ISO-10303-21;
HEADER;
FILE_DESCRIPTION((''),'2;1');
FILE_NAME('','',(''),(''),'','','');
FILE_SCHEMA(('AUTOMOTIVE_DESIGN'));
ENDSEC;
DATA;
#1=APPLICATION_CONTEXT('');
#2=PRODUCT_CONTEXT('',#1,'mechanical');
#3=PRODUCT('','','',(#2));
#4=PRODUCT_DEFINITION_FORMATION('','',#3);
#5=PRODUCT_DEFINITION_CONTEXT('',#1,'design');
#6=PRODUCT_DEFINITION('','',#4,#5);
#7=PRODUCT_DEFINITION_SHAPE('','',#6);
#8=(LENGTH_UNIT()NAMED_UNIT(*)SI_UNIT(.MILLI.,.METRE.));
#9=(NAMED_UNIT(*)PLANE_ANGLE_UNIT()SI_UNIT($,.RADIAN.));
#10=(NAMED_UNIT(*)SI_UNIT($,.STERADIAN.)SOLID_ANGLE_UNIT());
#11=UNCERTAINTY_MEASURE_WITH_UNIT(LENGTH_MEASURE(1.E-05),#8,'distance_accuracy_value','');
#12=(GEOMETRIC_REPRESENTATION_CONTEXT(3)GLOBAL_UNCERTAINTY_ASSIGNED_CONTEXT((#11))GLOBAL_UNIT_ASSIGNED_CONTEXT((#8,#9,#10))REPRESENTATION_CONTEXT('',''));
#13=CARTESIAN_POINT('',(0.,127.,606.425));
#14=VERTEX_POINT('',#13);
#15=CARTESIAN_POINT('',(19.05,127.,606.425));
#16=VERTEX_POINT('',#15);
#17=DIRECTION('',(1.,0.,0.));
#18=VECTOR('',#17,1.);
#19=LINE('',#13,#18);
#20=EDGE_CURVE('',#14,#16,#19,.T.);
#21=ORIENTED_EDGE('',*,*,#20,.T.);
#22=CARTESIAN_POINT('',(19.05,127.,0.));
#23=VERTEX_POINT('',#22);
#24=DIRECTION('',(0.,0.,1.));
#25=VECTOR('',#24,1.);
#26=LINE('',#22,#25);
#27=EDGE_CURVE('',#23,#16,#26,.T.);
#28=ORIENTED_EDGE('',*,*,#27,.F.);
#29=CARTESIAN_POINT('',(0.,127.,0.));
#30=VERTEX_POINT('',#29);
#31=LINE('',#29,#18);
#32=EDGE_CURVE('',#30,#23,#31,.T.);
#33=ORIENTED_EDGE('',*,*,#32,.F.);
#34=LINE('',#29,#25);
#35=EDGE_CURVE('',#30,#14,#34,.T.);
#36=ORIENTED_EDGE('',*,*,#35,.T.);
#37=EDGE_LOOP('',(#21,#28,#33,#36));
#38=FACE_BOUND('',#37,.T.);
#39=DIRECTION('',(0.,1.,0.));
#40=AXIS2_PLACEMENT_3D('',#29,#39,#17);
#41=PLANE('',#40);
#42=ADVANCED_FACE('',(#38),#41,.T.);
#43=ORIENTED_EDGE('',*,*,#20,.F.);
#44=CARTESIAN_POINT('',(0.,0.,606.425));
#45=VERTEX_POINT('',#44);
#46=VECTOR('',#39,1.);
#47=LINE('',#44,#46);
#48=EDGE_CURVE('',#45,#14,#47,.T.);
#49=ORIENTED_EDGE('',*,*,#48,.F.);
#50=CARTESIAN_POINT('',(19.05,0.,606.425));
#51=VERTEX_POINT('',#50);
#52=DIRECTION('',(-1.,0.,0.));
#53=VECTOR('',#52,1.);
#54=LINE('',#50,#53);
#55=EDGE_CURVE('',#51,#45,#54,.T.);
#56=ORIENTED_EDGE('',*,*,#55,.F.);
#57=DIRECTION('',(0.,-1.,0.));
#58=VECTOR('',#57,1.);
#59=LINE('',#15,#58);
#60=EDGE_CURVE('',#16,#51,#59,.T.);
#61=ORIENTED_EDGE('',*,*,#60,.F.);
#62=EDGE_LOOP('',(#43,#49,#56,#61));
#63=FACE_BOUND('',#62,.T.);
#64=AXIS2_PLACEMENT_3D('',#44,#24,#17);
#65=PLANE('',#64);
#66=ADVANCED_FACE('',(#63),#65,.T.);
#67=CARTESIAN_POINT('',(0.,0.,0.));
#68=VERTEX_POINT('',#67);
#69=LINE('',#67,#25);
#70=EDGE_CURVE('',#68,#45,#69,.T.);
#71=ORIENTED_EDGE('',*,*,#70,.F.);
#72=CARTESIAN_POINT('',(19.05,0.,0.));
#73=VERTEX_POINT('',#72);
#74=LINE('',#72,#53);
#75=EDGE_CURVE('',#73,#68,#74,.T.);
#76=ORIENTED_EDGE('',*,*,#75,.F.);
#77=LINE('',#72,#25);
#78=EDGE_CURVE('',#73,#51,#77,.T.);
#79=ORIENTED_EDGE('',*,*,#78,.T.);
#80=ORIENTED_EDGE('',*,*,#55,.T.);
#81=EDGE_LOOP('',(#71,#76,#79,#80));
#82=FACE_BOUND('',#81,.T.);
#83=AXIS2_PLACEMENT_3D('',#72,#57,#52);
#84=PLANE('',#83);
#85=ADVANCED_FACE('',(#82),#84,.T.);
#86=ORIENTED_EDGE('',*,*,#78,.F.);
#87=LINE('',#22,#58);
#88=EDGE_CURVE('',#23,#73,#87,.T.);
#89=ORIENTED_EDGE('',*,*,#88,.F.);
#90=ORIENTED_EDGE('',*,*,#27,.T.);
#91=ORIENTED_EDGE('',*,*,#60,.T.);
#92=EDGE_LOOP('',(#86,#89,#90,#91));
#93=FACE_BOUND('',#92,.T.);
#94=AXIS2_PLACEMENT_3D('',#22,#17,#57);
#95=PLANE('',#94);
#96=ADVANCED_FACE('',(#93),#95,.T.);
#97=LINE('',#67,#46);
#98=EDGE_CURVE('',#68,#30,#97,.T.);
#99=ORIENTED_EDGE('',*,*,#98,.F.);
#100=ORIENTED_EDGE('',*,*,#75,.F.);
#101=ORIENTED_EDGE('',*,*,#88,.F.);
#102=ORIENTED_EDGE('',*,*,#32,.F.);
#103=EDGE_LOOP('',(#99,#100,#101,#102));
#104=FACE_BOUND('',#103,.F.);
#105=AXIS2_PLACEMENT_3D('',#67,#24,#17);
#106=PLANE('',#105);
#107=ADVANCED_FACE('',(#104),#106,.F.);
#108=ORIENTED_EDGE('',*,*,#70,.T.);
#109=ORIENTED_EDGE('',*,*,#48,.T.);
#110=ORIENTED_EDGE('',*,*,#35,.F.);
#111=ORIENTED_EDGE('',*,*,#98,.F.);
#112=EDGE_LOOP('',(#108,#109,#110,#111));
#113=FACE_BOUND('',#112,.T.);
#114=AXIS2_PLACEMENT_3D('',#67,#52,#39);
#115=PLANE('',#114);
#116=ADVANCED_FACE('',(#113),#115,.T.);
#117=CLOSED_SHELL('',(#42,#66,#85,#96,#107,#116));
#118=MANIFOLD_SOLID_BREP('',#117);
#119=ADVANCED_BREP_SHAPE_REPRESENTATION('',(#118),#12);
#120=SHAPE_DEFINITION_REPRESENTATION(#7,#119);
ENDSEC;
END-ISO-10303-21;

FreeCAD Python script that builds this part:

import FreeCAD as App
import Part
import Sketcher

V = App.Vector
Q = App.Units.Quantity

doc = App.newDocument("Part")
params = doc.addObject("Spreadsheet::Sheet", "Params")
for row, (alias, value) in enumerate([
    ("sketch1_height", "5 in"),
    ("sketch1_width", "0.75 in"),
    ("pad1_length", "23.875 in"),
], start=1):
    params.set(f"A{row}", alias)
    params.set(f"B{row}", "=" + value)
    params.setAlias(f"B{row}", alias)

body = doc.addObject("PartDesign::Body", "Body")

# Sketch on XY plane
sketch1 = body.newObject("Sketcher::SketchObject", "Sketch")
sketch1.AttachmentSupport = (doc.getObject("XY_Plane"), [""])
sketch1.MapMode = "FlatFace"
sketch1.addGeometry([
    Part.LineSegment(V(0, 127, 0), V(0, 0, 0)),
    Part.LineSegment(V(0, 0, 0), V(19, 0, 0)),
    Part.LineSegment(V(19, 0, 0), V(19, 127, 0)),
    Part.LineSegment(V(19, 127, 0), V(0, 127, 0)),
], False)
sketch1.addConstraint([
    Sketcher.Constraint("Coincident", 0, 2, 1, 1),
    Sketcher.Constraint("Coincident", 1, 2, 2, 1),
    Sketcher.Constraint("Coincident", 2, 2, 3, 1),
    Sketcher.Constraint("Coincident", 3, 2, 0, 1),
    Sketcher.Constraint("Vertical", 0),
    Sketcher.Constraint("Horizontal", 1),
    Sketcher.Constraint("Vertical", 2),
    Sketcher.Constraint("Horizontal", 3),
    Sketcher.Constraint("Coincident", 0, 2, -1, 1),
    Sketcher.Constraint("DistanceY", 0, 2, 0, 1, Q("5 in")),
    Sketcher.Constraint("DistanceX", 1, 1, 1, 2, Q("0.75 in")),
])
sketch1.setExpression("Constraints[9]", "Params.sketch1_height")
sketch1.setExpression("Constraints[10]", "Params.sketch1_width")
pad1 = body.newObject("PartDesign::Pad", "Pad")
pad1.Profile = sketch1
pad1.setExpression("Length", "Params.pad1_length")

doc.recompute()
